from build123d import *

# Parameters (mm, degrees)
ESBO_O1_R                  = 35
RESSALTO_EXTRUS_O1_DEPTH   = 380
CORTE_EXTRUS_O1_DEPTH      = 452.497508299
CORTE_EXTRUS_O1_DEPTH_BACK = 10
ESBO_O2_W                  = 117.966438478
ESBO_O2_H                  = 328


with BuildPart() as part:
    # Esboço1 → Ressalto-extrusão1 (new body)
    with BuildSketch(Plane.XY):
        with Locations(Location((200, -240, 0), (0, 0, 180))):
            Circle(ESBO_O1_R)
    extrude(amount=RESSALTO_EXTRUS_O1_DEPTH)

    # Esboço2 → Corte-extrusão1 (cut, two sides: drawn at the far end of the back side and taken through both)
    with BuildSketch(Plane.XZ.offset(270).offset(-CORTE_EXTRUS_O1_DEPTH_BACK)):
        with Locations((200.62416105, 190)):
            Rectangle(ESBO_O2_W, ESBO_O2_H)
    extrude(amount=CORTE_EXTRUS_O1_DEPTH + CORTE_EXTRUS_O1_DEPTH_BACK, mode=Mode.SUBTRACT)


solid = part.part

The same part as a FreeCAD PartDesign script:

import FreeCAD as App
import Part
import Sketcher
from FreeCAD import Vector

doc = App.newDocument("Part")
body = doc.addObject("PartDesign::Body", "Body")

# Sketch on XY plane
sketch1 = body.newObject("Sketcher::SketchObject", "Sketch")
sketch1.AttachmentSupport = (doc.getObject("XY_Plane"), [""])
sketch1.MapMode = "FlatFace"
sketch1.addGeometry(Part.Circle(Vector(200, -240, 0), Vector(0, 0, 1), 35), False)
sketch1.addConstraint(Sketcher.Constraint("Diameter", 0, 70.0))
sketch1.addConstraint(Sketcher.Constraint("DistanceX", -1, 1, 0, 3, 200.0))
sketch1.addConstraint(Sketcher.Constraint("DistanceY", 0, 3, -1, 1, 240.0))
pad1 = body.newObject("PartDesign::Pad", "Pad")
pad1.Profile = sketch1
pad1.Length = 380

# Sketch on XZ plane
sketch2 = body.newObject("Sketcher::SketchObject", "Sketch001")
sketch2.AttachmentSupport = (doc.getObject("XZ_Plane"), [""])
sketch2.MapMode = "FlatFace"
sketch2.AttachmentOffset = App.Placement(Vector(0, 0, 270), App.Rotation())
sketch2.addGeometry(Part.LineSegment(Vector(142, 354, 0), Vector(142, 26, 0)), False)
sketch2.addGeometry(Part.LineSegment(Vector(142, 26, 0), Vector(260, 26, 0)), False)
sketch2.addGeometry(Part.LineSegment(Vector(260, 26, 0), Vector(260, 354, 0)), False)
sketch2.addGeometry(Part.LineSegment(Vector(260, 354, 0), Vector(142, 354, 0)), False)
sketch2.addConstraint(Sketcher.Constraint("Coincident", 0, 2, 1, 1))
sketch2.addConstraint(Sketcher.Constraint("Coincident", 1, 2, 2, 1))
sketch2.addConstraint(Sketcher.Constraint("Coincident", 2, 2, 3, 1))
sketch2.addConstraint(Sketcher.Constraint("Coincident", 3, 2, 0, 1))
sketch2.addConstraint(Sketcher.Constraint("Vertical", 0))
sketch2.addConstraint(Sketcher.Constraint("Horizontal", 1))
sketch2.addConstraint(Sketcher.Constraint("Vertical", 2))
sketch2.addConstraint(Sketcher.Constraint("Horizontal", 3))
sketch2.addConstraint(Sketcher.Constraint("DistanceY", 0, 2, 0, 1, 328.0))
sketch2.addConstraint(Sketcher.Constraint("DistanceY", -1, 1, 0, 2, 26.0))
sketch2.addConstraint(Sketcher.Constraint("DistanceX", 1, 1, 1, 2, 117.966438))
sketch2.addConstraint(Sketcher.Constraint("DistanceX", -1, 1, 0, 2, 141.640942))
pocket1 = body.newObject("PartDesign::Pocket", "Pocket")
pocket1.Profile = sketch2
pocket1.Type = "TwoLengths"
pocket1.Length = 452.497508
pocket1.Length2 = 10
pocket1.Reversed = True

doc.recompute()
